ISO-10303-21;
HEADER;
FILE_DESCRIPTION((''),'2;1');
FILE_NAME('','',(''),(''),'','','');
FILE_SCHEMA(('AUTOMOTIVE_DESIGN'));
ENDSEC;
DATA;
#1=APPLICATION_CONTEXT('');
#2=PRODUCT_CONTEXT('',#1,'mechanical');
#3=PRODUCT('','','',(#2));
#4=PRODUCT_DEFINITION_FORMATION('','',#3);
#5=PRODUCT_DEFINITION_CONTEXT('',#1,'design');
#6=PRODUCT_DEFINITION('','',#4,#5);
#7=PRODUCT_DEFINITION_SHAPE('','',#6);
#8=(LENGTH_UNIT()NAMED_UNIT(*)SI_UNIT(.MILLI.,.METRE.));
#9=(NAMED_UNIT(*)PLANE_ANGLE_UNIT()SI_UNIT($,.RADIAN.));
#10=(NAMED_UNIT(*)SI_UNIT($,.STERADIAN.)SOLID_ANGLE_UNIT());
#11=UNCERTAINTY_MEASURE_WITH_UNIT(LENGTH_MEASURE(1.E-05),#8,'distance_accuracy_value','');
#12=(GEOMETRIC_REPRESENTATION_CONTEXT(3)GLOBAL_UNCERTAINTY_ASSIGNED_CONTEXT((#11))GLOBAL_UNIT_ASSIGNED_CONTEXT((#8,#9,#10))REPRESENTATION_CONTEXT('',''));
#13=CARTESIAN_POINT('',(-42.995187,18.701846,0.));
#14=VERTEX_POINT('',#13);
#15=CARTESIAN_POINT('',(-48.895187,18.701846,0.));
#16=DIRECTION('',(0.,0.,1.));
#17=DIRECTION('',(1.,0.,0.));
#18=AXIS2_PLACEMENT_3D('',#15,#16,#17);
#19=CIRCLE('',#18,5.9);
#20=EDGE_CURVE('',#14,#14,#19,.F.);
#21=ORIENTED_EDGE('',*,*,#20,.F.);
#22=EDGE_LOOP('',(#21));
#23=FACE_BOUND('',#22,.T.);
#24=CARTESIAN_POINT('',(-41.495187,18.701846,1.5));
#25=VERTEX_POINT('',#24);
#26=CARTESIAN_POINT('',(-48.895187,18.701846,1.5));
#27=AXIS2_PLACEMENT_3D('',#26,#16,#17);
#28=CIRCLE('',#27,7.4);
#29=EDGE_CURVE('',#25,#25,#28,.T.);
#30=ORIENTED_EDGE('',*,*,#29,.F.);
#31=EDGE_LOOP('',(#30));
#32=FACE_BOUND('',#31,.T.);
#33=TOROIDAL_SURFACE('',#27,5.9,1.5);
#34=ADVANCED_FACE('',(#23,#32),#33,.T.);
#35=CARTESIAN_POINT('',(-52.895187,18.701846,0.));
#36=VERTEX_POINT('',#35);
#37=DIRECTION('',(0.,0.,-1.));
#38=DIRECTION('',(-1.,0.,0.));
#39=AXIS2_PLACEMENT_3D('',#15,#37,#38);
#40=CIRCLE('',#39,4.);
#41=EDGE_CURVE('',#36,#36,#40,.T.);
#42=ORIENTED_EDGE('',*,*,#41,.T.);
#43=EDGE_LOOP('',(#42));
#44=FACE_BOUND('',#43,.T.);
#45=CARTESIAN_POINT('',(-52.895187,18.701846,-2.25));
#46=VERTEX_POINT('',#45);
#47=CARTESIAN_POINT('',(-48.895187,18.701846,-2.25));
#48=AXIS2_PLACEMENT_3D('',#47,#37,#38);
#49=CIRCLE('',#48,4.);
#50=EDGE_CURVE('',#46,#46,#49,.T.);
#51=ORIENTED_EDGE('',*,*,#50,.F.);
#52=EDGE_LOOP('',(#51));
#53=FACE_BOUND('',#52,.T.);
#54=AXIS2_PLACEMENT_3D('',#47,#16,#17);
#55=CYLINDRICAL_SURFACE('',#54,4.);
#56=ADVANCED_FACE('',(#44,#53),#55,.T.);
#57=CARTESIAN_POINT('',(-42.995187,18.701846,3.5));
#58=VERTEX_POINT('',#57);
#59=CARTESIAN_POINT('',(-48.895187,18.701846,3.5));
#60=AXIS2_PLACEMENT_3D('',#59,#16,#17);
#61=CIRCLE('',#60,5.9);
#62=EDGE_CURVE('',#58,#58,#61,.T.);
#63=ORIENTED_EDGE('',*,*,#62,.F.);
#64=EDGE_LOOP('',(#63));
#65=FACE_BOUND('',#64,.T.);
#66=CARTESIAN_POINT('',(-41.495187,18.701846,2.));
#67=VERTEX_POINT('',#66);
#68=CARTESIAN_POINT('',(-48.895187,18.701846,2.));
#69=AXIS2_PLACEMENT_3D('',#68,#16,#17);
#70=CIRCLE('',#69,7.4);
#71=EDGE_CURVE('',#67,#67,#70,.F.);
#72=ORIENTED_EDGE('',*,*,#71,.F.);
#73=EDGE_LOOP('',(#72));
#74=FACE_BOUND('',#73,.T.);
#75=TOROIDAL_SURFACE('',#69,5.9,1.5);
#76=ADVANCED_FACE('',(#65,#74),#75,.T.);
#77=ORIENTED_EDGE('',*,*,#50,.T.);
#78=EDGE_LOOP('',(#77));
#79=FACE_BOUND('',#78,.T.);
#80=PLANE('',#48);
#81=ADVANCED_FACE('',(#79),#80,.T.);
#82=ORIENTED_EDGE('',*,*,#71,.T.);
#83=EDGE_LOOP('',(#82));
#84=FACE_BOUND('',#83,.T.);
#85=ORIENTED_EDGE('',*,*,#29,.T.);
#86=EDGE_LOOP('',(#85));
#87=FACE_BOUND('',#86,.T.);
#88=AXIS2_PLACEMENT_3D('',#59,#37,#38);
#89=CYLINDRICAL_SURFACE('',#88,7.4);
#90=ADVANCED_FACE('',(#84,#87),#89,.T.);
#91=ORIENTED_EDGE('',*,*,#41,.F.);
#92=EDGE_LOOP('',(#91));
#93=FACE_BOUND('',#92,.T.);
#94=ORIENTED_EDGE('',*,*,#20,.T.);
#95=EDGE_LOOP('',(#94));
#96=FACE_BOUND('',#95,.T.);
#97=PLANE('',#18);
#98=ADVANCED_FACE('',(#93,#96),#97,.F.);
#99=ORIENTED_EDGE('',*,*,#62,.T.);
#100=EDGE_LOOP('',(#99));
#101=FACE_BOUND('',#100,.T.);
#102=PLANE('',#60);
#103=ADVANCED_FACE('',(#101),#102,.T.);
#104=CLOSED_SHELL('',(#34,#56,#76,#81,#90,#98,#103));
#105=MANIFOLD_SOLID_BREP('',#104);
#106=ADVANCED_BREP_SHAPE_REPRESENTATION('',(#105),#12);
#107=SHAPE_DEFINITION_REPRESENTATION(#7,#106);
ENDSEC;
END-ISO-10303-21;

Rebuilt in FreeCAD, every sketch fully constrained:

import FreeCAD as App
import Part
import Sketcher
Q = App.Units.Quantity


def edges_at(feature, points):
    """Names of the edges that pass closest to the given points."""
    edges = feature.Shape.Edges
    near = lambda p: min(range(len(edges)), key=lambda i: edges[i].distToShape(Part.Vertex(*p))[0])
    return sorted({f"Edge{near(p) + 1}" for p in points})

doc = App.newDocument("Part")
params = doc.addObject("Spreadsheet::Sheet", "Params")
for row, (alias, value) in enumerate([
    ("sketch1_diameter", "14.8 mm"),
    ("pad1_length", "3.5 mm"),
    ("sketch2_diameter", "8 mm"),
    ("pad2_length", "2.25 mm"),
    ("fillet_radius", "1.5 mm"),
    ("fillet2_radius", "1.5 mm"),
], start=1):
    params.set(f"A{row}", alias)
    params.set(f"B{row}", "=" + value)
    params.setAlias(f"B{row}", alias)

body = doc.addObject("PartDesign::Body", "Body")

# Sketch on XY plane
sketch1 = body.newObject("Sketcher::SketchObject", "Sketch")
sketch1.AttachmentSupport = (doc.getObject("XY_Plane"), [""])
sketch1.MapMode = "FlatFace"
sketch1.addGeometry(Part.Circle(App.Vector(-49, 19, 0), App.Vector(0, 0, 1), 7), False)
sketch1.addConstraint([
    Sketcher.Constraint("Diameter", 0, Q("14.8 mm")),
    Sketcher.Constraint("DistanceX", 0, 3, -1, 1, Q("48.895187 mm")),
    Sketcher.Constraint("DistanceY", -1, 1, 0, 3, Q("18.701846 mm")),
])
sketch1.setExpression("Constraints[0]", "Params.sketch1_diameter")
pad1 = body.newObject("PartDesign::Pad", "Pad")
pad1.Profile = sketch1
pad1.setExpression("Length", "Params.pad1_length")

# Sketch on XY plane
sketch2 = body.newObject("Sketcher::SketchObject", "Sketch001")
sketch2.AttachmentSupport = (doc.getObject("XY_Plane"), [""])
sketch2.MapMode = "FlatFace"
sketch2.addGeometry(Part.Circle(App.Vector(-48.9, 18.7, 0), App.Vector(0, 0, 1), 4), False)
sketch2.addConstraint([
    Sketcher.Constraint("Diameter", 0, Q("8 mm")),
    Sketcher.Constraint("DistanceX", 0, 3, -1, 1, Q("48.895187 mm")),
    Sketcher.Constraint("DistanceY", -1, 1, 0, 3, Q("18.701846 mm")),
])
sketch2.setExpression("Constraints[0]", "Params.sketch2_diameter")
pad2 = body.newObject("PartDesign::Pad", "Pad001")
pad2.Profile = sketch2
pad2.setExpression("Length", "Params.pad2_length")
pad2.Reversed = True
doc.recompute()

fillet = body.newObject("PartDesign::Fillet", "Fillet")
fillet.Base = (pad2, edges_at(pad2, [(-56.295, 18.702, 3.5)]))
fillet.setExpression("Radius", "Params.fillet_radius")
doc.recompute()

fillet2 = body.newObject("PartDesign::Fillet", "Fillet001")
fillet2.Base = (fillet, edges_at(fillet, [(-56.295, 18.702, 0)]))
fillet2.setExpression("Radius", "Params.fillet2_radius")

doc.recompute()
